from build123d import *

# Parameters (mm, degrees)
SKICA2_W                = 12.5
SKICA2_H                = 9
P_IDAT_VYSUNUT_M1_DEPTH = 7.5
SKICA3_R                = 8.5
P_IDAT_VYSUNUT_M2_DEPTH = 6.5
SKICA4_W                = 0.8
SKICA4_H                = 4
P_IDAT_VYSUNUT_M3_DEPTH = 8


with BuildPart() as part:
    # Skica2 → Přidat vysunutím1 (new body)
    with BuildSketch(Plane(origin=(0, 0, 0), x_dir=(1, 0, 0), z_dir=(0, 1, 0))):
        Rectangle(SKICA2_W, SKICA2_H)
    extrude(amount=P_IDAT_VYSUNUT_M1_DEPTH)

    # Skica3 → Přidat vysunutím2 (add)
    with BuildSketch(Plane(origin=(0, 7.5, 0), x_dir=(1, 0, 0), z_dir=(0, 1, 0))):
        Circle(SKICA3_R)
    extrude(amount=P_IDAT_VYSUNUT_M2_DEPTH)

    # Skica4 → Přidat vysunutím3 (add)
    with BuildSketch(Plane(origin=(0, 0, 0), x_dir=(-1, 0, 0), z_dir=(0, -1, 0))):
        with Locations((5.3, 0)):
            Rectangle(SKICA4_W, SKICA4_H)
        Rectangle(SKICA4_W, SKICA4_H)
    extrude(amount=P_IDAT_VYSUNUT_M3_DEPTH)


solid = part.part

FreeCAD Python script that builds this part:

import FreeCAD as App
import Part
import Sketcher

V = App.Vector
Q = App.Units.Quantity

doc = App.newDocument("Part")
body = doc.addObject("PartDesign::Body", "Body")

# Sketch on XZ plane
sketch1 = body.newObject("Sketcher::SketchObject", "Sketch")
sketch1.AttachmentSupport = (doc.getObject("XZ_Plane"), [""])
sketch1.MapMode = "FlatFace"
sketch1.addGeometry([
    Part.LineSegment(V(-6.25, -4.5, 0), V(-6.25, 4.5, 0)),
    Part.LineSegment(V(-6.25, 4.5, 0), V(6.25, 4.5, 0)),
    Part.LineSegment(V(6.25, 4.5, 0), V(6.25, -4.5, 0)),
    Part.LineSegment(V(6.25, -4.5, 0), V(-6.25, -4.5, 0)),
], False)
sketch1.addConstraint([
    Sketcher.Constraint("Coincident", 0, 2, 1, 1),
    Sketcher.Constraint("Coincident", 1, 2, 2, 1),
    Sketcher.Constraint("Coincident", 2, 2, 3, 1),
    Sketcher.Constraint("Coincident", 3, 2, 0, 1),
    Sketcher.Constraint("Vertical", 0),
    Sketcher.Constraint("Horizontal", 1),
    Sketcher.Constraint("Vertical", 2),
    Sketcher.Constraint("Horizontal", 3),
    Sketcher.Constraint("Symmetric", 0, 2, 2, 2, -1, 1),
    Sketcher.Constraint("DistanceY", 0, 1, 0, 2, Q("9 mm")),
    Sketcher.Constraint("DistanceX", 1, 1, 1, 2, Q("12.5 mm")),
])
pad1 = body.newObject("PartDesign::Pad", "Pad")
pad1.Profile = sketch1
pad1.Length = 7.5
pad1.Reversed = True

# Sketch on XZ plane
sketch2 = body.newObject("Sketcher::SketchObject", "Sketch001")
sketch2.AttachmentSupport = (doc.getObject("XZ_Plane"), [""])
sketch2.MapMode = "FlatFace"
sketch2.AttachmentOffset = App.Placement(V(0, 0, -7.5), App.Rotation())
sketch2.addGeometry(Part.Circle(V(0, 0, 0), V(0, 0, 1), 8.5), False)
sketch2.addConstraint([
    Sketcher.Constraint("Coincident", 0, 3, -1, 1),
    Sketcher.Constraint("Diameter", 0, Q("17 mm")),
])
pad2 = body.newObject("PartDesign::Pad", "Pad001")
pad2.Profile = sketch2
pad2.Length = 6.5
pad2.Reversed = True

# Sketch on XZ plane
sketch3 = body.newObject("Sketcher::SketchObject", "Sketch002")
sketch3.AttachmentSupport = (doc.getObject("XZ_Plane"), [""])
sketch3.MapMode = "FlatFace"
sketch3.addGeometry([
    Part.LineSegment(V(-4.9, -2, 0), V(-4.9, 2, 0)),  # 0
    Part.LineSegment(V(-4.9, 2, 0), V(-5.7, 2, 0)),  # 1
    Part.LineSegment(V(-5.7, 2, 0), V(-5.7, -2, 0)),  # 2
    Part.LineSegment(V(-5.7, -2, 0), V(-4.9, -2, 0)),  # 3
    Part.LineSegment(V(0.4, -2, 0), V(0.4, 2, 0)),  # 4
    Part.LineSegment(V(0.4, 2, 0), V(-0.4, 2, 0)),  # 5
    Part.LineSegment(V(-0.4, 2, 0), V(-0.4, -2, 0)),  # 6
    Part.LineSegment(V(-0.4, -2, 0), V(0.4, -2, 0)),  # 7
], False)
sketch3.addConstraint([
    Sketcher.Constraint("Coincident", 0, 2, 1, 1),
    Sketcher.Constraint("Coincident", 1, 2, 2, 1),
    Sketcher.Constraint("Coincident", 2, 2, 3, 1),
    Sketcher.Constraint("Coincident", 3, 2, 0, 1),
    Sketcher.Constraint("Coincident", 4, 2, 5, 1),
    Sketcher.Constraint("Coincident", 5, 2, 6, 1),
    Sketcher.Constraint("Coincident", 6, 2, 7, 1),
    Sketcher.Constraint("Coincident", 7, 2, 4, 1),
    Sketcher.Constraint("Vertical", 0),
    Sketcher.Constraint("Horizontal", 1),
    Sketcher.Constraint("Vertical", 2),
    Sketcher.Constraint("Horizontal", 3),
    Sketcher.Constraint("Vertical", 4),
    Sketcher.Constraint("Horizontal", 5),
    Sketcher.Constraint("Vertical", 6),
    Sketcher.Constraint("Horizontal", 7),
    Sketcher.Constraint("Symmetric", 4, 2, 6, 2, -1, 1),
    Sketcher.Constraint("Horizontal", 1, 2, 4, 2),
    Sketcher.Constraint("Horizontal", 3, 2, 6, 2),
    Sketcher.Constraint("Equal", 3, 5),
    Sketcher.Constraint("DistanceY", 0, 1, 0, 2, Q("4 mm")),
    Sketcher.Constraint("DistanceX", 1, 2, 1, 1, Q("0.8 mm")),
    Sketcher.Constraint("DistanceX", 0, 2, -1, 1, Q("4.9 mm")),
])
pad3 = body.newObject("PartDesign::Pad", "Pad002")
pad3.Profile = sketch3
pad3.Length = 8

doc.recompute()
